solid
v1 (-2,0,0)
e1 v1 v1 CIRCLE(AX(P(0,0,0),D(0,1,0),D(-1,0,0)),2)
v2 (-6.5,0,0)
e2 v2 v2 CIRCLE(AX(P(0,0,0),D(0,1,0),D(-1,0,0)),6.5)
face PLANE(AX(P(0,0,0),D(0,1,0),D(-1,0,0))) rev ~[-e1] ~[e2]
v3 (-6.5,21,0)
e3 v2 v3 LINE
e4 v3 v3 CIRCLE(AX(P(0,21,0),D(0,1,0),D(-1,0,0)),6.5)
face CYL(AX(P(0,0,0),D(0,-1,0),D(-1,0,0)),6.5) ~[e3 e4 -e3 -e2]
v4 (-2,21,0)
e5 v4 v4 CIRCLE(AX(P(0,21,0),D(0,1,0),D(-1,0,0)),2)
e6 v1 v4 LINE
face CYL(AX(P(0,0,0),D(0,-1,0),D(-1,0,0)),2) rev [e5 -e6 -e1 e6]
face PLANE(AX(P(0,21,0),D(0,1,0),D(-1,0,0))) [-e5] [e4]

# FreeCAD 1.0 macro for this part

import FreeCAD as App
import Part
import Sketcher
from FreeCAD import Vector
Q = App.Units.Quantity

doc = App.newDocument("Part")
body = doc.addObject("PartDesign::Body", "Body")

sketch1 = doc.addObject("Sketcher::SketchObject", "Sketch")
body.addObject(sketch1)
sketch1.AttachmentSupport = (doc.XZ_Plane, [""])
sketch1.MapMode = "FlatFace"
sketch1.addGeometry([
    Part.Circle(Vector(0, 0, 0), Vector(0, 0, 1), 6.5),
    Part.Circle(Vector(0, 0, 0), Vector(0, 0, 1), 2),
], False)
sketch1.addConstraint([
    Sketcher.Constraint("Coincident", 0, 3, -1, 1),
    Sketcher.Constraint("Coincident", 1, 3, -1, 1),
    Sketcher.Constraint("Diameter", 0, Q("13 mm")),
    Sketcher.Constraint("Diameter", 1, Q("4 mm")),
])
pad1 = doc.addObject("PartDesign::Pad", "Pad")
body.addObject(pad1)
pad1.Profile = sketch1
pad1.Length = 21
pad1.Reversed = True

doc.recompute()
